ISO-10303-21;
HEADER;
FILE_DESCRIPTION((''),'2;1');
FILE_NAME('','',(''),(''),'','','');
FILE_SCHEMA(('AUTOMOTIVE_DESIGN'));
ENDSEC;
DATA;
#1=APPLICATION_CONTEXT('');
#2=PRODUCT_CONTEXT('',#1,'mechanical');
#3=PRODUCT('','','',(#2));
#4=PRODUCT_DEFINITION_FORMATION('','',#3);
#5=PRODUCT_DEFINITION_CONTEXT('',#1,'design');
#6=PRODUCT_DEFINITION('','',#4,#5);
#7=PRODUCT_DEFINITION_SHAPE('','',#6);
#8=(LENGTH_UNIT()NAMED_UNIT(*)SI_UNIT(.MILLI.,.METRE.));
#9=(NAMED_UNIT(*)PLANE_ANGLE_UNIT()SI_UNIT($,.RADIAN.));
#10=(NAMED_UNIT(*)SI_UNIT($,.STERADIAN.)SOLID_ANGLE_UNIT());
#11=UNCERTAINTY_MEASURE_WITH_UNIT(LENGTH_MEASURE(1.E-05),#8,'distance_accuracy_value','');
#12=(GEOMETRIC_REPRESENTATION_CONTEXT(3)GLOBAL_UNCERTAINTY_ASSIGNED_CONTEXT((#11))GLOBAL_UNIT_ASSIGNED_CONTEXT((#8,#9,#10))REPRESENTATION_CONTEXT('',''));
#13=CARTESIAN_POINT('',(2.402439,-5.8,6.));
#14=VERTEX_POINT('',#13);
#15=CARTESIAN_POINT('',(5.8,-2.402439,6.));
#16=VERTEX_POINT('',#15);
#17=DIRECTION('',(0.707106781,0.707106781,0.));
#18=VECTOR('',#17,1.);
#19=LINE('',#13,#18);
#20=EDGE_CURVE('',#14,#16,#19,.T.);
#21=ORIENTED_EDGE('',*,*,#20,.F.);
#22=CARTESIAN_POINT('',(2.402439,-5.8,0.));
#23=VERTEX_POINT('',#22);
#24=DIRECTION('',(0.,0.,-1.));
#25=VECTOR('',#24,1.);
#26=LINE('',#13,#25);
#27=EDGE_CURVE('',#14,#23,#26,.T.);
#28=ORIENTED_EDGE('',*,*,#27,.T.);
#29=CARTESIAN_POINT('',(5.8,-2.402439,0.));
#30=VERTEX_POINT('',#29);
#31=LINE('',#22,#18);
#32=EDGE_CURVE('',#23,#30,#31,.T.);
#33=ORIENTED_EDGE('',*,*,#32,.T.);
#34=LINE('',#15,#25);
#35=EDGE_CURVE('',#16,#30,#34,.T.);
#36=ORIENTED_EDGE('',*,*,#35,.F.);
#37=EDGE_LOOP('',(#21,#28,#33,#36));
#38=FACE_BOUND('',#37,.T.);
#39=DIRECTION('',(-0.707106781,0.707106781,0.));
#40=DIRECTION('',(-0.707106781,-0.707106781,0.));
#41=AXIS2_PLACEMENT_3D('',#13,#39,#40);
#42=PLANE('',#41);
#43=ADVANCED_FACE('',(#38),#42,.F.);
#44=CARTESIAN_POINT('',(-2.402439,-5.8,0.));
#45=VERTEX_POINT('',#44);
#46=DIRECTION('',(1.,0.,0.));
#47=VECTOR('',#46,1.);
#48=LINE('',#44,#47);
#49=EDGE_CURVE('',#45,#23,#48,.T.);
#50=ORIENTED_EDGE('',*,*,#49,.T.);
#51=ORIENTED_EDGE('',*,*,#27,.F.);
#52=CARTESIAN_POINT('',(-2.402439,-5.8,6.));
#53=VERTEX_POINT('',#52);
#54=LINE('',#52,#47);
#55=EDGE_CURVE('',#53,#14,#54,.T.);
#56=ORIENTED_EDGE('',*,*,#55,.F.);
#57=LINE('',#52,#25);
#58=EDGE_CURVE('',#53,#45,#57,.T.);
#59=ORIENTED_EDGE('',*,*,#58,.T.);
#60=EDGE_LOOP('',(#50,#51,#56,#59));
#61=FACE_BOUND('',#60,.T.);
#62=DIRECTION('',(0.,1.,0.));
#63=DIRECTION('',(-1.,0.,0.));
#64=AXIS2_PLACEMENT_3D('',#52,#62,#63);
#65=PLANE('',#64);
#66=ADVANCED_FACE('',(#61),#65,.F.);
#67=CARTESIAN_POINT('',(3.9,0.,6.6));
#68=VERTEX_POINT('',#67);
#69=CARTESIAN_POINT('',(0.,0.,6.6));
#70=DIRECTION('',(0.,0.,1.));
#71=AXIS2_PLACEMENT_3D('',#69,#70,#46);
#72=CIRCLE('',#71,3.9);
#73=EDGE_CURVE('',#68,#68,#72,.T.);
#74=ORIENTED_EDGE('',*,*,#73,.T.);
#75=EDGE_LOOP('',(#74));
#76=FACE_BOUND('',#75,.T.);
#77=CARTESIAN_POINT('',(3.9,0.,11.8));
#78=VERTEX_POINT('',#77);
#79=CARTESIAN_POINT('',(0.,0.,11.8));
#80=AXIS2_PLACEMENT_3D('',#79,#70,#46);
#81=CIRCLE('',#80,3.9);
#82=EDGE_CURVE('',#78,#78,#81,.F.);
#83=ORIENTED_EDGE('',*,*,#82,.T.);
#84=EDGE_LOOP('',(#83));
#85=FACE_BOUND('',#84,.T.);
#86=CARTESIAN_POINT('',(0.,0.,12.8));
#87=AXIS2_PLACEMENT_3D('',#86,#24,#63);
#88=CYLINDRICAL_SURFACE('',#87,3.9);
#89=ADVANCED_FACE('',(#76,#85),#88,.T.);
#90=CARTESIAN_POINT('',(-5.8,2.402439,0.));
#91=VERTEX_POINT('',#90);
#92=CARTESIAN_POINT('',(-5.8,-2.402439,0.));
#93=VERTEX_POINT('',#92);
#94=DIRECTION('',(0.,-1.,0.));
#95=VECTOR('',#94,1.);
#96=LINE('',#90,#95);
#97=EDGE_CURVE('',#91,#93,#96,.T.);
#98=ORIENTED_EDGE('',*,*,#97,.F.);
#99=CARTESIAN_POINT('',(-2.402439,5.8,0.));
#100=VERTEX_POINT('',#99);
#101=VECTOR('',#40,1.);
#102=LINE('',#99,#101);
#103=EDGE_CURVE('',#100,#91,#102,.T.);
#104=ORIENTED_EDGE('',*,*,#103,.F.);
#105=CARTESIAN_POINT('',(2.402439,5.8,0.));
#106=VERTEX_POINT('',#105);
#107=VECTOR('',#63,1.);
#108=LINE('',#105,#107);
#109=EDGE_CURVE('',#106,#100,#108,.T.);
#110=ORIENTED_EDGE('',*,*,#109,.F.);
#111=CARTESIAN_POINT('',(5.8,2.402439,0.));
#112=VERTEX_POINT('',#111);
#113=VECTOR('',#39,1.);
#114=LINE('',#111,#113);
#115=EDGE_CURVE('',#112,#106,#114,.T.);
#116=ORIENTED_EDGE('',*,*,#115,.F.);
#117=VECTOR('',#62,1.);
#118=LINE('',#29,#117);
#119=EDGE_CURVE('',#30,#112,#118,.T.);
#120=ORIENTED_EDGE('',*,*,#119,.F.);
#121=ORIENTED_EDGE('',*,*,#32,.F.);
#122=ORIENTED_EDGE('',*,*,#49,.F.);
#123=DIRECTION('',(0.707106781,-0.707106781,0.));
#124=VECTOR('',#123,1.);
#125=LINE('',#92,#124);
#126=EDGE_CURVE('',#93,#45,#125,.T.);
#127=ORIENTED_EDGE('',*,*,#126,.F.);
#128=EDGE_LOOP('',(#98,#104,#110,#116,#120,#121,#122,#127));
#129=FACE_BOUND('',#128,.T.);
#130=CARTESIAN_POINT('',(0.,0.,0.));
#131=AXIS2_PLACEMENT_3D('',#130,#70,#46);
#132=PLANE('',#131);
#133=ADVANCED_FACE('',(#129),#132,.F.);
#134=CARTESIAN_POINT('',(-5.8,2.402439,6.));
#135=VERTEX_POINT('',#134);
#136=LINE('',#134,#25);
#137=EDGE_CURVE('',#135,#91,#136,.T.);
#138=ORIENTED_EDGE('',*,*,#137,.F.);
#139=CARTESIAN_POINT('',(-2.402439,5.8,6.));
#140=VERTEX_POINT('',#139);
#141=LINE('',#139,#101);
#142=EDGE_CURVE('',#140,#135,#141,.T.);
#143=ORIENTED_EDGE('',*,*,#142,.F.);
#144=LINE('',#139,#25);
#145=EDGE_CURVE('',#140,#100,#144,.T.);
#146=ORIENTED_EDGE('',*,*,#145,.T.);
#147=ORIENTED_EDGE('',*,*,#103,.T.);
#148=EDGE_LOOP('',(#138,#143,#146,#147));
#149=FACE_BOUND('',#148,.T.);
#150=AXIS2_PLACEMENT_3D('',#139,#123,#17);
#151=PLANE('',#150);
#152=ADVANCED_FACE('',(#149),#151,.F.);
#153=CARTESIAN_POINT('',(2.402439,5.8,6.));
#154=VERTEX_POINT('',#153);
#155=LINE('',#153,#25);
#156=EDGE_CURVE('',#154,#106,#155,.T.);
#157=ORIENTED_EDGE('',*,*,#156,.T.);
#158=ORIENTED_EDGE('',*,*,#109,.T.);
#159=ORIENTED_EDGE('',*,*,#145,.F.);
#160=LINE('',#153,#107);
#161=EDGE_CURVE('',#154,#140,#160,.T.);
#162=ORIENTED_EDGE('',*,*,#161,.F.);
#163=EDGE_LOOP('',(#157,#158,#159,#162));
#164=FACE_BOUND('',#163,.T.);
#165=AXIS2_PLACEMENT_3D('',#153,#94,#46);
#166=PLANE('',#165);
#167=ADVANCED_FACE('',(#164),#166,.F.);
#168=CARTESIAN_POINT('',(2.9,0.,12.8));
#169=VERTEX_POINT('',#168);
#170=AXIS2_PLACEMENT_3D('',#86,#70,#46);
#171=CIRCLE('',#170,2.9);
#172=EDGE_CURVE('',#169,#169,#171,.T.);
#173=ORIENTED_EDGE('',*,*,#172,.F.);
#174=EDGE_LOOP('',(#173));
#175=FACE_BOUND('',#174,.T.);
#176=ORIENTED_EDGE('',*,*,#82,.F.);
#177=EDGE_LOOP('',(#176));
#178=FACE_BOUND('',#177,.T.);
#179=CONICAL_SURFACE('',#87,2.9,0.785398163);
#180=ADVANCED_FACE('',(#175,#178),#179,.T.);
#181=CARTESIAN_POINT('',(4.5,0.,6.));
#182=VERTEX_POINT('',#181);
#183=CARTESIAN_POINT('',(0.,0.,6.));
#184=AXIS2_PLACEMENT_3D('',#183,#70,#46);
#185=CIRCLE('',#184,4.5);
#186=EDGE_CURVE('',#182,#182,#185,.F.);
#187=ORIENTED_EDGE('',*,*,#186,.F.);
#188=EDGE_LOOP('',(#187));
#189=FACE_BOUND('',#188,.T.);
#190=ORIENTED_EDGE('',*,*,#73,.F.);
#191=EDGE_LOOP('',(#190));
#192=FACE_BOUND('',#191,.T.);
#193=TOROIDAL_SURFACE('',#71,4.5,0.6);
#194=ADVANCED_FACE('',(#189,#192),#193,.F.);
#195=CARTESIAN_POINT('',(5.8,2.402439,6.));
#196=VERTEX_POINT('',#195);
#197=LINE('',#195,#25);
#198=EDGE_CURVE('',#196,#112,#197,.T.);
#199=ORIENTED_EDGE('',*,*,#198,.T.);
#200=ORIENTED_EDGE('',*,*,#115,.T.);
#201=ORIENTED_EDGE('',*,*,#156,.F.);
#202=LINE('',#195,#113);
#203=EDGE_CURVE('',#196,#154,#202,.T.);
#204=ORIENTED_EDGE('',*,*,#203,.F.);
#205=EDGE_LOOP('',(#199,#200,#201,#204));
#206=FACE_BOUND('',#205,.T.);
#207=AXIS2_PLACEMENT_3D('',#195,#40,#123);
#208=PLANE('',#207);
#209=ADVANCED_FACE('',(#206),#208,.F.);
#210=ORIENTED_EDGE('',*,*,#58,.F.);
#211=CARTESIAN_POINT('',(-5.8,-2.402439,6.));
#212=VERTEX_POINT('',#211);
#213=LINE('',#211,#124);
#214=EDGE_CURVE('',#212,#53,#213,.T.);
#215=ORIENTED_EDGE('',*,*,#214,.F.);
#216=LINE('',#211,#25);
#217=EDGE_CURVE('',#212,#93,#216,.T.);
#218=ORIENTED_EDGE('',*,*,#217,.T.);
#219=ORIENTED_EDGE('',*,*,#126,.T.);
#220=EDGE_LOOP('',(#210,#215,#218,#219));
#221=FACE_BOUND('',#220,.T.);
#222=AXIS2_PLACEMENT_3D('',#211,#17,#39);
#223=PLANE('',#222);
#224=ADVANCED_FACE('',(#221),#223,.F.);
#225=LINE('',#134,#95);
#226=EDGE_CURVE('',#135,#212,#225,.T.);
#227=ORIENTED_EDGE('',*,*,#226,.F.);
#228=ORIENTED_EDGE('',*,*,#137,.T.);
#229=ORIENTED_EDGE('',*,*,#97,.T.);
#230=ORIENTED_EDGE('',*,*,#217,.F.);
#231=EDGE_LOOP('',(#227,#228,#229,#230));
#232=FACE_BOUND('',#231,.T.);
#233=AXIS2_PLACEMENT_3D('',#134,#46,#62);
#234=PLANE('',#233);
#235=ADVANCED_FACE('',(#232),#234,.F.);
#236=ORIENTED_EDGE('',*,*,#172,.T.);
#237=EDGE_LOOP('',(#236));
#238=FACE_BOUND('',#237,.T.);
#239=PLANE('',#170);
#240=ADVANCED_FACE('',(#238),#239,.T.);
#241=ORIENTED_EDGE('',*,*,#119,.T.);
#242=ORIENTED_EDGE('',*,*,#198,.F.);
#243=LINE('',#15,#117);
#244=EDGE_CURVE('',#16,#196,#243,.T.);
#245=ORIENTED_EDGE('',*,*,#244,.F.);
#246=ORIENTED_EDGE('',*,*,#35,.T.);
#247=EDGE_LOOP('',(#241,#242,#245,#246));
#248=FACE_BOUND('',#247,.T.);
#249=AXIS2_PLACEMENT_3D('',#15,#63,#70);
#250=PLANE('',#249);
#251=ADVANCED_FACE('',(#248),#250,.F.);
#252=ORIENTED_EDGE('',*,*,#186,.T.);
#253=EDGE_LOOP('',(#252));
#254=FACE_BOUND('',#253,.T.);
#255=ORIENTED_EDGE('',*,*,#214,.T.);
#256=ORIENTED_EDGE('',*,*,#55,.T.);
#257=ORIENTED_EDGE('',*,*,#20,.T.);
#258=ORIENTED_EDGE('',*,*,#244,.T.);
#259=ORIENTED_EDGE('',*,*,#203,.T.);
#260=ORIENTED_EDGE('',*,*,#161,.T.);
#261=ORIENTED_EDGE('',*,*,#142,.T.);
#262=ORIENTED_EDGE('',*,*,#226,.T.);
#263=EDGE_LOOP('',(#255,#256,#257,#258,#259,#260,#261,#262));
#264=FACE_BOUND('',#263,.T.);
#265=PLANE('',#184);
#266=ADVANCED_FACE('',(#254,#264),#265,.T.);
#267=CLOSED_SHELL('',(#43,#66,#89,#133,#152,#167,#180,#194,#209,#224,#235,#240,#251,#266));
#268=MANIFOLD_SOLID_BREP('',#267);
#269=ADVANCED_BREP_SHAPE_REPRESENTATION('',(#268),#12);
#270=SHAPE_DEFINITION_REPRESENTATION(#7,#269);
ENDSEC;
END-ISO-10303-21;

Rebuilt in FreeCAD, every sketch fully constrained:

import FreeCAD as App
import Part
import Sketcher
from FreeCAD import Vector
Q = App.Units.Quantity


def edges_at(feature, points):
    """Names of the edges that pass closest to the given points."""
    edges = feature.Shape.Edges
    near = lambda p: min(range(len(edges)), key=lambda i: edges[i].distToShape(Part.Vertex(*p))[0])
    return sorted({f"Edge{near(p) + 1}" for p in points})

doc = App.newDocument("Part")
body = doc.addObject("PartDesign::Body", "Body")

# Sketch on XY plane
sketch1 = body.newObject("Sketcher::SketchObject", "Sketch")
sketch1.AttachmentSupport = (doc.getObject("XY_Plane"), [""])
sketch1.MapMode = "FlatFace"
sketch1.addGeometry(Part.LineSegment(Vector(2.402439, 5.8, 0), Vector(-2.402439, 5.8, 0)), False)
sketch1.addGeometry(Part.LineSegment(Vector(-2.402439, 5.8, 0), Vector(-5.8, 2.402439, 0)), False)
sketch1.addGeometry(Part.LineSegment(Vector(-5.8, 2.402439, 0), Vector(-5.8, -2.402439, 0)), False)
sketch1.addGeometry(Part.LineSegment(Vector(-5.8, -2.402439, 0), Vector(-2.402439, -5.8, 0)), False)
sketch1.addGeometry(Part.LineSegment(Vector(-2.402439, -5.8, 0), Vector(2.402439, -5.8, 0)), False)
sketch1.addGeometry(Part.LineSegment(Vector(2.402439, -5.8, 0), Vector(5.8, -2.402439, 0)), False)
sketch1.addGeometry(Part.LineSegment(Vector(5.8, -2.402439, 0), Vector(5.8, 2.402439, 0)), False)
sketch1.addGeometry(Part.LineSegment(Vector(5.8, 2.402439, 0), Vector(2.402439, 5.8, 0)), False)
sketch1.addConstraint(Sketcher.Constraint("Coincident", 0, 2, 1, 1))
sketch1.addConstraint(Sketcher.Constraint("Coincident", 1, 2, 2, 1))
sketch1.addConstraint(Sketcher.Constraint("Coincident", 2, 2, 3, 1))
sketch1.addConstraint(Sketcher.Constraint("Coincident", 3, 2, 4, 1))
sketch1.addConstraint(Sketcher.Constraint("Coincident", 4, 2, 5, 1))
sketch1.addConstraint(Sketcher.Constraint("Coincident", 5, 2, 6, 1))
sketch1.addConstraint(Sketcher.Constraint("Coincident", 6, 2, 7, 1))
sketch1.addConstraint(Sketcher.Constraint("Coincident", 7, 2, 0, 1))
sketch1.addConstraint(Sketcher.Constraint("Horizontal", 0))
sketch1.addConstraint(Sketcher.Constraint("Vertical", 2))
sketch1.addConstraint(Sketcher.Constraint("Horizontal", 4))
sketch1.addConstraint(Sketcher.Constraint("Vertical", 6))
sketch1.addConstraint(Sketcher.Constraint("Symmetric", 0, 2, 4, 2, -1, 1))
sketch1.addConstraint(Sketcher.Constraint("Symmetric", 1, 2, 5, 2, -1, 1))
sketch1.addConstraint(Sketcher.Constraint("Perpendicular", 1, 3))
sketch1.addConstraint(Sketcher.Constraint("Perpendicular", 5, 7))
sketch1.addConstraint(Sketcher.Constraint("Horizontal", 2, 2, 5, 2))
sketch1.addConstraint(Sketcher.Constraint("Horizontal", 1, 2, 6, 2))
sketch1.addConstraint(Sketcher.Constraint("Vertical", 0, 2, 3, 2))
sketch1.addConstraint(Sketcher.Constraint("Equal", 4, 2))
sketch1.addConstraint(Sketcher.Constraint("DistanceY", -1, 1, 0, 2, Q("5.8 mm")))
sketch1.addConstraint(Sketcher.Constraint("DistanceX", 0, 2, 0, 1, Q("4.804877 mm")))
pad1 = body.newObject("PartDesign::Pad", "Pad")
pad1.Profile = sketch1
pad1.Length = 6

# Sketch on XY plane
sketch2 = body.newObject("Sketcher::SketchObject", "Sketch001")
sketch2.AttachmentSupport = (doc.getObject("XY_Plane"), [""])
sketch2.MapMode = "FlatFace"
sketch2.AttachmentOffset = App.Placement(Vector(0, 0, 6), App.Rotation())
sketch2.addGeometry(Part.Circle(Vector(0, 0, 0), Vector(0, 0, 1), 3.9), False)
sketch2.addConstraint(Sketcher.Constraint("Coincident", 0, 3, -1, 1))
sketch2.addConstraint(Sketcher.Constraint("Diameter", 0, Q("7.8 mm")))
pad2 = body.newObject("PartDesign::Pad", "Pad001")
pad2.Profile = sketch2
pad2.Length = 6.8
doc.recompute()

chamfer = body.newObject("PartDesign::Chamfer", "Chamfer")
chamfer.Base = (pad2, edges_at(pad2, [(-3.9, 0, 12.8)]))
chamfer.Size = 1
doc.recompute()

fillet = body.newObject("PartDesign::Fillet", "Fillet")
fillet.Base = (chamfer, edges_at(chamfer, [(-3.9, 0, 6)]))
fillet.Radius = 0.6

doc.recompute()
